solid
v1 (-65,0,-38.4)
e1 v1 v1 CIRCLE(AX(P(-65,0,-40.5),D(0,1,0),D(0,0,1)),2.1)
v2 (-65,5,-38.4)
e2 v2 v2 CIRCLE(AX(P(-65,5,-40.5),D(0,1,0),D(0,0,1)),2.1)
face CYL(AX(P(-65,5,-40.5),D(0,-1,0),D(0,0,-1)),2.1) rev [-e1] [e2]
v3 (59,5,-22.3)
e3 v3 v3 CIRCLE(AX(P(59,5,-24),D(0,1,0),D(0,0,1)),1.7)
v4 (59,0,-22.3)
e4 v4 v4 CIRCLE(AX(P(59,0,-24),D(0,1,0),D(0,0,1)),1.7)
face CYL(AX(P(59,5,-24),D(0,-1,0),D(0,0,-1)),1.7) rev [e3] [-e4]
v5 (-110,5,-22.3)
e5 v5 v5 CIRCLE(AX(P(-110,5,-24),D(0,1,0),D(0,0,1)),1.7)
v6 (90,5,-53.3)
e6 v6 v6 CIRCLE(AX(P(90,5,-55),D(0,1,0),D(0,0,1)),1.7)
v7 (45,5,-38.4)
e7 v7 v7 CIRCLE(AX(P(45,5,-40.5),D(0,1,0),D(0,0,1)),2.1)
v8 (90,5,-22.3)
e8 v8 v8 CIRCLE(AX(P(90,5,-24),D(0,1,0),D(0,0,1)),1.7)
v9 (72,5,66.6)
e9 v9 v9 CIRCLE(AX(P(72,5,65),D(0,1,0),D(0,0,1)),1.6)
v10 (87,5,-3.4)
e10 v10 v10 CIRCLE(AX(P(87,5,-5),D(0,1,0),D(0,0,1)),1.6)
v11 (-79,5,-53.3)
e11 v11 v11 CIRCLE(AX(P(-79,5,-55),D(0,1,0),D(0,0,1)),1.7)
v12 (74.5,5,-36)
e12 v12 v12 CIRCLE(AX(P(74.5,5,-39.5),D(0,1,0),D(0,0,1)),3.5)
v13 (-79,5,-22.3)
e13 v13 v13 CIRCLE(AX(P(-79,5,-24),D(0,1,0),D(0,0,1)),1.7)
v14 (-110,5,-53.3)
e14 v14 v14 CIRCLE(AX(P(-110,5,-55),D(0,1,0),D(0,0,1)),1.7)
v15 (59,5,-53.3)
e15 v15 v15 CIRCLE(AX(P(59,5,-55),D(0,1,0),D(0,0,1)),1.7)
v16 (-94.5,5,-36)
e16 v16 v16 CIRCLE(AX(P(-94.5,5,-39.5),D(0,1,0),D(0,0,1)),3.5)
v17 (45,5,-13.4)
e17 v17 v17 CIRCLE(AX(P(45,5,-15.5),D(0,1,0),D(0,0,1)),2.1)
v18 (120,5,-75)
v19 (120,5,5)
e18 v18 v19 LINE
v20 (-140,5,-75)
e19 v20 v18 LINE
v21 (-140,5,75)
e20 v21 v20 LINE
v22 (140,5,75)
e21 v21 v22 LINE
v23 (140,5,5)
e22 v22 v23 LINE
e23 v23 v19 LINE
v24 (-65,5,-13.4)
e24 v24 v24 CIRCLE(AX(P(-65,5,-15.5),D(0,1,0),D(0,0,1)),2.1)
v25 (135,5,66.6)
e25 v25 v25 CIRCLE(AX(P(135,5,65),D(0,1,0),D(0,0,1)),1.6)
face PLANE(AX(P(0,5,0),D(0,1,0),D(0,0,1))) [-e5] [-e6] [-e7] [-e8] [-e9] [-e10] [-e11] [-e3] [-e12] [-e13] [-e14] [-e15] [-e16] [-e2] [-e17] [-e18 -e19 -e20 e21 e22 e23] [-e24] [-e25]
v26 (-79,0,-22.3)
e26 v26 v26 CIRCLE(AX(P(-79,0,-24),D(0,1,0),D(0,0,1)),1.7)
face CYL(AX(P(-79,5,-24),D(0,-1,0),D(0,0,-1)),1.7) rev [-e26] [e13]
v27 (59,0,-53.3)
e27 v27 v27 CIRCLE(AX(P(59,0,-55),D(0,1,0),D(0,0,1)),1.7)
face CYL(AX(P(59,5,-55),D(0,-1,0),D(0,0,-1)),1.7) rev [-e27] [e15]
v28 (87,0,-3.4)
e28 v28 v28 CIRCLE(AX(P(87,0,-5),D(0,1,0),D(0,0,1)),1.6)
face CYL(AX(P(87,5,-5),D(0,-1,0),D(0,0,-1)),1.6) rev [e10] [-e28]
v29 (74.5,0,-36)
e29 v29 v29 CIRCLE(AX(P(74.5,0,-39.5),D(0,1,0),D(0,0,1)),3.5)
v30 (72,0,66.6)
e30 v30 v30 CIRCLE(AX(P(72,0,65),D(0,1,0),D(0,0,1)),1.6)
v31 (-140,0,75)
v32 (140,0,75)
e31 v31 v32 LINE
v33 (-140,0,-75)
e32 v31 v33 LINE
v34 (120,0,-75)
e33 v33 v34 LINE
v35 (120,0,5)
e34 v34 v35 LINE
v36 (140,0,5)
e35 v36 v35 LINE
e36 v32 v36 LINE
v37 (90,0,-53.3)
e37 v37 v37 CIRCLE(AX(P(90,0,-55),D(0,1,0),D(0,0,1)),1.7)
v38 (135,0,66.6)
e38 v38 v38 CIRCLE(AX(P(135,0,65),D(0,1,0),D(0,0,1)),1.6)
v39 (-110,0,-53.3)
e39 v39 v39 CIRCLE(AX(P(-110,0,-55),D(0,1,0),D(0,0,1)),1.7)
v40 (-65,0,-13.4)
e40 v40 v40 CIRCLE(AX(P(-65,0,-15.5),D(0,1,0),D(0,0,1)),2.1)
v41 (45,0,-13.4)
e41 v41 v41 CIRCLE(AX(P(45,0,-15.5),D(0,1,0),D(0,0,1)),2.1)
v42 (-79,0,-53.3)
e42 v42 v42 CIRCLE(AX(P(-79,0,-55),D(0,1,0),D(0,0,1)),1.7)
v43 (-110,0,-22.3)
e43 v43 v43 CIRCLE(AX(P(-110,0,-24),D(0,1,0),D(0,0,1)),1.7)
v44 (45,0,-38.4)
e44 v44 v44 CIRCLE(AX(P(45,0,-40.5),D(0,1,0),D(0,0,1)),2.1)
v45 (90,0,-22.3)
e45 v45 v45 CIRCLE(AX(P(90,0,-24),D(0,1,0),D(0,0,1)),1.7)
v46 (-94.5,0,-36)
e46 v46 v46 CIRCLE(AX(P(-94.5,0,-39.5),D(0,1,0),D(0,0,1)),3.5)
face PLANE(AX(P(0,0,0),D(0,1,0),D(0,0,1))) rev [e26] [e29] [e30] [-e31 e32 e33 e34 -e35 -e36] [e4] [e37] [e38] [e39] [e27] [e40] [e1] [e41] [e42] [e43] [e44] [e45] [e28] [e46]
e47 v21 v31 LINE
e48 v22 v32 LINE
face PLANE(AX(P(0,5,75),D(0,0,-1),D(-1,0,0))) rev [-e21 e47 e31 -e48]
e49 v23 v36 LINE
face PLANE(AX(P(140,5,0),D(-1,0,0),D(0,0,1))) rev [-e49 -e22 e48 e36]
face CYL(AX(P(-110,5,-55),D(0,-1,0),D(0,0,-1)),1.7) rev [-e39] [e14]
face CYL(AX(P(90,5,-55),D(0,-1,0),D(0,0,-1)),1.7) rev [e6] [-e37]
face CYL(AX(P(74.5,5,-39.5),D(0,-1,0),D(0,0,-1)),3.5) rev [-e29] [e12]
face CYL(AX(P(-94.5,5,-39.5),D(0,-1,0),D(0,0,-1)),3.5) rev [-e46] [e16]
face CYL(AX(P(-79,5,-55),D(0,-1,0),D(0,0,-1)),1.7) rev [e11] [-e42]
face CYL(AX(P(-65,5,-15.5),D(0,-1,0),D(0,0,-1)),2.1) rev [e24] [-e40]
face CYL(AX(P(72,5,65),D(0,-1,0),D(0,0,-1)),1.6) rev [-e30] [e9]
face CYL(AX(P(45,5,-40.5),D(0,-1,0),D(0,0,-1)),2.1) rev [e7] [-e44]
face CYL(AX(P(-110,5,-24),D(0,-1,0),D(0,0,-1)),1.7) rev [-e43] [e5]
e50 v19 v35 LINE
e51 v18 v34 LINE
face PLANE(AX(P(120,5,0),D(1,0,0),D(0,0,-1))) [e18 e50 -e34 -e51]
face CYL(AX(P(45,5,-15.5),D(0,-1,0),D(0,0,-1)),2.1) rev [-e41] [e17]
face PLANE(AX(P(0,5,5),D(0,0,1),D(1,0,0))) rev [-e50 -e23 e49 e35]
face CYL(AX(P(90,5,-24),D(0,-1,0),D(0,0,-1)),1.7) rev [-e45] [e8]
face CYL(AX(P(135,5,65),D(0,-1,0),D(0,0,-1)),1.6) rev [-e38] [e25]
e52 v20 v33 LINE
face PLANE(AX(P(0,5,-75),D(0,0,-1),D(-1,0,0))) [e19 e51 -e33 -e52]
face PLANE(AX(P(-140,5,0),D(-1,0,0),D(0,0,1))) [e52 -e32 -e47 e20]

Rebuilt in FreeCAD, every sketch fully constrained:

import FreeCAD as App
import Part
import Sketcher

V = App.Vector
Q = App.Units.Quantity

doc = App.newDocument("Part")
body = doc.addObject("PartDesign::Body", "Body")

# Sketch on XZ plane
sketch1 = doc.addObject("Sketcher::SketchObject", "Sketch")
body.addObject(sketch1)
sketch1.AttachmentSupport = (doc.XZ_Plane, [""])
sketch1.MapMode = "FlatFace"
sketch1.addGeometry(Part.LineSegment(V(-140, -75, 0), V(-140, 75, 0)), False)
sketch1.addGeometry(Part.LineSegment(V(-140, 75, 0), V(140, 75, 0)), False)
sketch1.addGeometry(Part.LineSegment(V(140, 75, 0), V(140, 5, 0)), False)
sketch1.addGeometry(Part.LineSegment(V(140, 5, 0), V(120, 5, 0)), False)
sketch1.addGeometry(Part.LineSegment(V(120, 5, 0), V(120, -75, 0)), False)
sketch1.addGeometry(Part.LineSegment(V(120, -75, 0), V(-140, -75, 0)), False)
sketch1.addGeometry(Part.Circle(V(72, 65, 0), V(0, 0, 1), 1.6), False)
sketch1.addGeometry(Part.Circle(V(135, 65, 0), V(0, 0, 1), 1.6), False)
sketch1.addGeometry(Part.Circle(V(-110, -24, 0), V(0, 0, 1), 1.7), False)
sketch1.addGeometry(Part.Circle(V(-65, -15.5, 0), V(0, 0, 1), 2.1), False)
sketch1.addGeometry(Part.Circle(V(-79, -24, 0), V(0, 0, 1), 1.7), False)
sketch1.addGeometry(Part.Circle(V(-94.5, -39.5, 0), V(0, 0, 1), 3.5), False)
sketch1.addGeometry(Part.Circle(V(-65, -40.5, 0), V(0, 0, 1), 2.1), False)
sketch1.addGeometry(Part.Circle(V(-110, -55, 0), V(0, 0, 1), 1.7), False)
sketch1.addGeometry(Part.Circle(V(-79, -55, 0), V(0, 0, 1), 1.7), False)
sketch1.addGeometry(Part.Circle(V(45, -15.5, 0), V(0, 0, 1), 2.1), False)
sketch1.addGeometry(Part.Circle(V(59, -24, 0), V(0, 0, 1), 1.7), False)
sketch1.addGeometry(Part.Circle(V(87, -5, 0), V(0, 0, 1), 1.6), False)
sketch1.addGeometry(Part.Circle(V(90, -24, 0), V(0, 0, 1), 1.7), False)
sketch1.addGeometry(Part.Circle(V(45, -40.5, 0), V(0, 0, 1), 2.1), False)
sketch1.addGeometry(Part.Circle(V(74.5, -39.5, 0), V(0, 0, 1), 3.5), False)
sketch1.addGeometry(Part.Circle(V(59, -55, 0), V(0, 0, 1), 1.7), False)
sketch1.addGeometry(Part.Circle(V(90, -55, 0), V(0, 0, 1), 1.7), False)
sketch1.addConstraint(Sketcher.Constraint("Coincident", 0, 2, 1, 1))
sketch1.addConstraint(Sketcher.Constraint("Coincident", 1, 2, 2, 1))
sketch1.addConstraint(Sketcher.Constraint("Coincident", 2, 2, 3, 1))
sketch1.addConstraint(Sketcher.Constraint("Coincident", 3, 2, 4, 1))
sketch1.addConstraint(Sketcher.Constraint("Coincident", 4, 2, 5, 1))
sketch1.addConstraint(Sketcher.Constraint("Coincident", 5, 2, 0, 1))
sketch1.addConstraint(Sketcher.Constraint("Vertical", 0))
sketch1.addConstraint(Sketcher.Constraint("Horizontal", 1))
sketch1.addConstraint(Sketcher.Constraint("Vertical", 2))
sketch1.addConstraint(Sketcher.Constraint("Horizontal", 3))
sketch1.addConstraint(Sketcher.Constraint("Vertical", 4))
sketch1.addConstraint(Sketcher.Constraint("Horizontal", 5))
sketch1.addConstraint(Sketcher.Constraint("Equal", 6, 7))
sketch1.addConstraint(Sketcher.Constraint("Equal", 8, 10))
sketch1.addConstraint(Sketcher.Constraint("Equal", 9, 12))
sketch1.addConstraint(Sketcher.Constraint("Equal", 10, 13))
sketch1.addConstraint(Sketcher.Constraint("Equal", 13, 14))
sketch1.addConstraint(Sketcher.Constraint("Equal", 12, 15))
sketch1.addConstraint(Sketcher.Constraint("Equal", 14, 16))
sketch1.addConstraint(Sketcher.Constraint("Equal", 7, 17))
sketch1.addConstraint(Sketcher.Constraint("Equal", 16, 18))
sketch1.addConstraint(Sketcher.Constraint("Equal", 15, 19))
sketch1.addConstraint(Sketcher.Constraint("Equal", 11, 20))
sketch1.addConstraint(Sketcher.Constraint("Equal", 18, 21))
sketch1.addConstraint(Sketcher.Constraint("Equal", 21, 22))
sketch1.addConstraint(Sketcher.Constraint("Symmetric", 1, 2, 5, 2, -1, 1))
sketch1.addConstraint(Sketcher.Constraint("Horizontal", 6, 3, 7, 3))
sketch1.addConstraint(Sketcher.Constraint("Horizontal", 8, 3, 10, 3))
sketch1.addConstraint(Sketcher.Constraint("Horizontal", 13, 3, 14, 3))
sketch1.addConstraint(Sketcher.Constraint("Horizontal", 9, 3, 15, 3))
sketch1.addConstraint(Sketcher.Constraint("Horizontal", 10, 3, 16, 3))
sketch1.addConstraint(Sketcher.Constraint("Horizontal", 16, 3, 18, 3))
sketch1.addConstraint(Sketcher.Constraint("Horizontal", 12, 3, 19, 3))
sketch1.addConstraint(Sketcher.Constraint("Horizontal", 11, 3, 20, 3))
sketch1.addConstraint(Sketcher.Constraint("Horizontal", 14, 3, 21, 3))
sketch1.addConstraint(Sketcher.Constraint("Horizontal", 21, 3, 22, 3))
sketch1.addConstraint(Sketcher.Constraint("Vertical", 9, 3, 12, 3))
sketch1.addConstraint(Sketcher.Constraint("Vertical", 8, 3, 13, 3))
sketch1.addConstraint(Sketcher.Constraint("Vertical", 10, 3, 14, 3))
sketch1.addConstraint(Sketcher.Constraint("Vertical", 15, 3, 19, 3))
sketch1.addConstraint(Sketcher.Constraint("Vertical", 16, 3, 21, 3))
sketch1.addConstraint(Sketcher.Constraint("Vertical", 18, 3, 22, 3))
sketch1.addConstraint(Sketcher.Constraint("Diameter", 11, Q("7 mm")))
sketch1.addConstraint(Sketcher.Constraint("Diameter", 6, Q("3.2 mm")))
sketch1.addConstraint(Sketcher.Constraint("Diameter", 8, Q("3.4 mm")))
sketch1.addConstraint(Sketcher.Constraint("Diameter", 9, Q("4.2 mm")))
sketch1.addConstraint(Sketcher.Constraint("DistanceX", 1, 1, 1, 2, Q("280 mm")))
sketch1.addConstraint(Sketcher.Constraint("DistanceX", 3, 2, 3, 1, Q("20 mm")))
sketch1.addConstraint(Sketcher.Constraint("DistanceY", 0, 1, 0, 2, Q("150 mm")))
sketch1.addConstraint(Sketcher.Constraint("DistanceY", 2, 2, 2, 1, Q("70 mm")))
sketch1.addConstraint(Sketcher.Constraint("DistanceX", -1, 1, 6, 3, Q("72 mm")))
sketch1.addConstraint(Sketcher.Constraint("DistanceY", -1, 1, 6, 3, Q("65 mm")))
sketch1.addConstraint(Sketcher.Constraint("DistanceX", -1, 1, 7, 3, Q("135 mm")))
sketch1.addConstraint(Sketcher.Constraint("DistanceX", 8, 3, -1, 1, Q("110 mm")))
sketch1.addConstraint(Sketcher.Constraint("DistanceY", 8, 3, -1, 1, Q("24 mm")))
sketch1.addConstraint(Sketcher.Constraint("DistanceX", 9, 3, -1, 1, Q("65 mm")))
sketch1.addConstraint(Sketcher.Constraint("DistanceX", 10, 3, -1, 1, Q("79 mm")))
sketch1.addConstraint(Sketcher.Constraint("DistanceY", 13, 3, -1, 1, Q("55 mm")))
sketch1.addConstraint(Sketcher.Constraint("DistanceX", -1, 1, 15, 3, Q("45 mm")))
sketch1.addConstraint(Sketcher.Constraint("DistanceX", -1, 1, 16, 3, Q("59 mm")))
sketch1.addConstraint(Sketcher.Constraint("DistanceX", -1, 1, 17, 3, Q("87 mm")))
sketch1.addConstraint(Sketcher.Constraint("DistanceY", 17, 3, -1, 1, Q("5 mm")))
sketch1.addConstraint(Sketcher.Constraint("DistanceX", -1, 1, 18, 3, Q("90 mm")))
sketch1.addConstraint(Sketcher.Constraint("DistanceY", 11, 3, 9, 3, Q("24 mm")))
sketch1.addConstraint(Sketcher.Constraint("DistanceY", 12, 3, 9, 3, Q("25 mm")))
sketch1.addConstraint(Sketcher.Constraint("DistanceY", 9, 3, -1, 1, Q("15.5 mm")))
sketch1.addConstraint(Sketcher.Constraint("DistanceX", 11, 3, -1, 1, Q("94.5 mm")))
sketch1.addConstraint(Sketcher.Constraint("DistanceX", -1, 1, 20, 3, Q("74.5 mm")))
pad1 = doc.addObject("PartDesign::Pad", "Pad")
body.addObject(pad1)
pad1.Profile = sketch1
pad1.Length = 5
pad1.Reversed = True

doc.recompute()
